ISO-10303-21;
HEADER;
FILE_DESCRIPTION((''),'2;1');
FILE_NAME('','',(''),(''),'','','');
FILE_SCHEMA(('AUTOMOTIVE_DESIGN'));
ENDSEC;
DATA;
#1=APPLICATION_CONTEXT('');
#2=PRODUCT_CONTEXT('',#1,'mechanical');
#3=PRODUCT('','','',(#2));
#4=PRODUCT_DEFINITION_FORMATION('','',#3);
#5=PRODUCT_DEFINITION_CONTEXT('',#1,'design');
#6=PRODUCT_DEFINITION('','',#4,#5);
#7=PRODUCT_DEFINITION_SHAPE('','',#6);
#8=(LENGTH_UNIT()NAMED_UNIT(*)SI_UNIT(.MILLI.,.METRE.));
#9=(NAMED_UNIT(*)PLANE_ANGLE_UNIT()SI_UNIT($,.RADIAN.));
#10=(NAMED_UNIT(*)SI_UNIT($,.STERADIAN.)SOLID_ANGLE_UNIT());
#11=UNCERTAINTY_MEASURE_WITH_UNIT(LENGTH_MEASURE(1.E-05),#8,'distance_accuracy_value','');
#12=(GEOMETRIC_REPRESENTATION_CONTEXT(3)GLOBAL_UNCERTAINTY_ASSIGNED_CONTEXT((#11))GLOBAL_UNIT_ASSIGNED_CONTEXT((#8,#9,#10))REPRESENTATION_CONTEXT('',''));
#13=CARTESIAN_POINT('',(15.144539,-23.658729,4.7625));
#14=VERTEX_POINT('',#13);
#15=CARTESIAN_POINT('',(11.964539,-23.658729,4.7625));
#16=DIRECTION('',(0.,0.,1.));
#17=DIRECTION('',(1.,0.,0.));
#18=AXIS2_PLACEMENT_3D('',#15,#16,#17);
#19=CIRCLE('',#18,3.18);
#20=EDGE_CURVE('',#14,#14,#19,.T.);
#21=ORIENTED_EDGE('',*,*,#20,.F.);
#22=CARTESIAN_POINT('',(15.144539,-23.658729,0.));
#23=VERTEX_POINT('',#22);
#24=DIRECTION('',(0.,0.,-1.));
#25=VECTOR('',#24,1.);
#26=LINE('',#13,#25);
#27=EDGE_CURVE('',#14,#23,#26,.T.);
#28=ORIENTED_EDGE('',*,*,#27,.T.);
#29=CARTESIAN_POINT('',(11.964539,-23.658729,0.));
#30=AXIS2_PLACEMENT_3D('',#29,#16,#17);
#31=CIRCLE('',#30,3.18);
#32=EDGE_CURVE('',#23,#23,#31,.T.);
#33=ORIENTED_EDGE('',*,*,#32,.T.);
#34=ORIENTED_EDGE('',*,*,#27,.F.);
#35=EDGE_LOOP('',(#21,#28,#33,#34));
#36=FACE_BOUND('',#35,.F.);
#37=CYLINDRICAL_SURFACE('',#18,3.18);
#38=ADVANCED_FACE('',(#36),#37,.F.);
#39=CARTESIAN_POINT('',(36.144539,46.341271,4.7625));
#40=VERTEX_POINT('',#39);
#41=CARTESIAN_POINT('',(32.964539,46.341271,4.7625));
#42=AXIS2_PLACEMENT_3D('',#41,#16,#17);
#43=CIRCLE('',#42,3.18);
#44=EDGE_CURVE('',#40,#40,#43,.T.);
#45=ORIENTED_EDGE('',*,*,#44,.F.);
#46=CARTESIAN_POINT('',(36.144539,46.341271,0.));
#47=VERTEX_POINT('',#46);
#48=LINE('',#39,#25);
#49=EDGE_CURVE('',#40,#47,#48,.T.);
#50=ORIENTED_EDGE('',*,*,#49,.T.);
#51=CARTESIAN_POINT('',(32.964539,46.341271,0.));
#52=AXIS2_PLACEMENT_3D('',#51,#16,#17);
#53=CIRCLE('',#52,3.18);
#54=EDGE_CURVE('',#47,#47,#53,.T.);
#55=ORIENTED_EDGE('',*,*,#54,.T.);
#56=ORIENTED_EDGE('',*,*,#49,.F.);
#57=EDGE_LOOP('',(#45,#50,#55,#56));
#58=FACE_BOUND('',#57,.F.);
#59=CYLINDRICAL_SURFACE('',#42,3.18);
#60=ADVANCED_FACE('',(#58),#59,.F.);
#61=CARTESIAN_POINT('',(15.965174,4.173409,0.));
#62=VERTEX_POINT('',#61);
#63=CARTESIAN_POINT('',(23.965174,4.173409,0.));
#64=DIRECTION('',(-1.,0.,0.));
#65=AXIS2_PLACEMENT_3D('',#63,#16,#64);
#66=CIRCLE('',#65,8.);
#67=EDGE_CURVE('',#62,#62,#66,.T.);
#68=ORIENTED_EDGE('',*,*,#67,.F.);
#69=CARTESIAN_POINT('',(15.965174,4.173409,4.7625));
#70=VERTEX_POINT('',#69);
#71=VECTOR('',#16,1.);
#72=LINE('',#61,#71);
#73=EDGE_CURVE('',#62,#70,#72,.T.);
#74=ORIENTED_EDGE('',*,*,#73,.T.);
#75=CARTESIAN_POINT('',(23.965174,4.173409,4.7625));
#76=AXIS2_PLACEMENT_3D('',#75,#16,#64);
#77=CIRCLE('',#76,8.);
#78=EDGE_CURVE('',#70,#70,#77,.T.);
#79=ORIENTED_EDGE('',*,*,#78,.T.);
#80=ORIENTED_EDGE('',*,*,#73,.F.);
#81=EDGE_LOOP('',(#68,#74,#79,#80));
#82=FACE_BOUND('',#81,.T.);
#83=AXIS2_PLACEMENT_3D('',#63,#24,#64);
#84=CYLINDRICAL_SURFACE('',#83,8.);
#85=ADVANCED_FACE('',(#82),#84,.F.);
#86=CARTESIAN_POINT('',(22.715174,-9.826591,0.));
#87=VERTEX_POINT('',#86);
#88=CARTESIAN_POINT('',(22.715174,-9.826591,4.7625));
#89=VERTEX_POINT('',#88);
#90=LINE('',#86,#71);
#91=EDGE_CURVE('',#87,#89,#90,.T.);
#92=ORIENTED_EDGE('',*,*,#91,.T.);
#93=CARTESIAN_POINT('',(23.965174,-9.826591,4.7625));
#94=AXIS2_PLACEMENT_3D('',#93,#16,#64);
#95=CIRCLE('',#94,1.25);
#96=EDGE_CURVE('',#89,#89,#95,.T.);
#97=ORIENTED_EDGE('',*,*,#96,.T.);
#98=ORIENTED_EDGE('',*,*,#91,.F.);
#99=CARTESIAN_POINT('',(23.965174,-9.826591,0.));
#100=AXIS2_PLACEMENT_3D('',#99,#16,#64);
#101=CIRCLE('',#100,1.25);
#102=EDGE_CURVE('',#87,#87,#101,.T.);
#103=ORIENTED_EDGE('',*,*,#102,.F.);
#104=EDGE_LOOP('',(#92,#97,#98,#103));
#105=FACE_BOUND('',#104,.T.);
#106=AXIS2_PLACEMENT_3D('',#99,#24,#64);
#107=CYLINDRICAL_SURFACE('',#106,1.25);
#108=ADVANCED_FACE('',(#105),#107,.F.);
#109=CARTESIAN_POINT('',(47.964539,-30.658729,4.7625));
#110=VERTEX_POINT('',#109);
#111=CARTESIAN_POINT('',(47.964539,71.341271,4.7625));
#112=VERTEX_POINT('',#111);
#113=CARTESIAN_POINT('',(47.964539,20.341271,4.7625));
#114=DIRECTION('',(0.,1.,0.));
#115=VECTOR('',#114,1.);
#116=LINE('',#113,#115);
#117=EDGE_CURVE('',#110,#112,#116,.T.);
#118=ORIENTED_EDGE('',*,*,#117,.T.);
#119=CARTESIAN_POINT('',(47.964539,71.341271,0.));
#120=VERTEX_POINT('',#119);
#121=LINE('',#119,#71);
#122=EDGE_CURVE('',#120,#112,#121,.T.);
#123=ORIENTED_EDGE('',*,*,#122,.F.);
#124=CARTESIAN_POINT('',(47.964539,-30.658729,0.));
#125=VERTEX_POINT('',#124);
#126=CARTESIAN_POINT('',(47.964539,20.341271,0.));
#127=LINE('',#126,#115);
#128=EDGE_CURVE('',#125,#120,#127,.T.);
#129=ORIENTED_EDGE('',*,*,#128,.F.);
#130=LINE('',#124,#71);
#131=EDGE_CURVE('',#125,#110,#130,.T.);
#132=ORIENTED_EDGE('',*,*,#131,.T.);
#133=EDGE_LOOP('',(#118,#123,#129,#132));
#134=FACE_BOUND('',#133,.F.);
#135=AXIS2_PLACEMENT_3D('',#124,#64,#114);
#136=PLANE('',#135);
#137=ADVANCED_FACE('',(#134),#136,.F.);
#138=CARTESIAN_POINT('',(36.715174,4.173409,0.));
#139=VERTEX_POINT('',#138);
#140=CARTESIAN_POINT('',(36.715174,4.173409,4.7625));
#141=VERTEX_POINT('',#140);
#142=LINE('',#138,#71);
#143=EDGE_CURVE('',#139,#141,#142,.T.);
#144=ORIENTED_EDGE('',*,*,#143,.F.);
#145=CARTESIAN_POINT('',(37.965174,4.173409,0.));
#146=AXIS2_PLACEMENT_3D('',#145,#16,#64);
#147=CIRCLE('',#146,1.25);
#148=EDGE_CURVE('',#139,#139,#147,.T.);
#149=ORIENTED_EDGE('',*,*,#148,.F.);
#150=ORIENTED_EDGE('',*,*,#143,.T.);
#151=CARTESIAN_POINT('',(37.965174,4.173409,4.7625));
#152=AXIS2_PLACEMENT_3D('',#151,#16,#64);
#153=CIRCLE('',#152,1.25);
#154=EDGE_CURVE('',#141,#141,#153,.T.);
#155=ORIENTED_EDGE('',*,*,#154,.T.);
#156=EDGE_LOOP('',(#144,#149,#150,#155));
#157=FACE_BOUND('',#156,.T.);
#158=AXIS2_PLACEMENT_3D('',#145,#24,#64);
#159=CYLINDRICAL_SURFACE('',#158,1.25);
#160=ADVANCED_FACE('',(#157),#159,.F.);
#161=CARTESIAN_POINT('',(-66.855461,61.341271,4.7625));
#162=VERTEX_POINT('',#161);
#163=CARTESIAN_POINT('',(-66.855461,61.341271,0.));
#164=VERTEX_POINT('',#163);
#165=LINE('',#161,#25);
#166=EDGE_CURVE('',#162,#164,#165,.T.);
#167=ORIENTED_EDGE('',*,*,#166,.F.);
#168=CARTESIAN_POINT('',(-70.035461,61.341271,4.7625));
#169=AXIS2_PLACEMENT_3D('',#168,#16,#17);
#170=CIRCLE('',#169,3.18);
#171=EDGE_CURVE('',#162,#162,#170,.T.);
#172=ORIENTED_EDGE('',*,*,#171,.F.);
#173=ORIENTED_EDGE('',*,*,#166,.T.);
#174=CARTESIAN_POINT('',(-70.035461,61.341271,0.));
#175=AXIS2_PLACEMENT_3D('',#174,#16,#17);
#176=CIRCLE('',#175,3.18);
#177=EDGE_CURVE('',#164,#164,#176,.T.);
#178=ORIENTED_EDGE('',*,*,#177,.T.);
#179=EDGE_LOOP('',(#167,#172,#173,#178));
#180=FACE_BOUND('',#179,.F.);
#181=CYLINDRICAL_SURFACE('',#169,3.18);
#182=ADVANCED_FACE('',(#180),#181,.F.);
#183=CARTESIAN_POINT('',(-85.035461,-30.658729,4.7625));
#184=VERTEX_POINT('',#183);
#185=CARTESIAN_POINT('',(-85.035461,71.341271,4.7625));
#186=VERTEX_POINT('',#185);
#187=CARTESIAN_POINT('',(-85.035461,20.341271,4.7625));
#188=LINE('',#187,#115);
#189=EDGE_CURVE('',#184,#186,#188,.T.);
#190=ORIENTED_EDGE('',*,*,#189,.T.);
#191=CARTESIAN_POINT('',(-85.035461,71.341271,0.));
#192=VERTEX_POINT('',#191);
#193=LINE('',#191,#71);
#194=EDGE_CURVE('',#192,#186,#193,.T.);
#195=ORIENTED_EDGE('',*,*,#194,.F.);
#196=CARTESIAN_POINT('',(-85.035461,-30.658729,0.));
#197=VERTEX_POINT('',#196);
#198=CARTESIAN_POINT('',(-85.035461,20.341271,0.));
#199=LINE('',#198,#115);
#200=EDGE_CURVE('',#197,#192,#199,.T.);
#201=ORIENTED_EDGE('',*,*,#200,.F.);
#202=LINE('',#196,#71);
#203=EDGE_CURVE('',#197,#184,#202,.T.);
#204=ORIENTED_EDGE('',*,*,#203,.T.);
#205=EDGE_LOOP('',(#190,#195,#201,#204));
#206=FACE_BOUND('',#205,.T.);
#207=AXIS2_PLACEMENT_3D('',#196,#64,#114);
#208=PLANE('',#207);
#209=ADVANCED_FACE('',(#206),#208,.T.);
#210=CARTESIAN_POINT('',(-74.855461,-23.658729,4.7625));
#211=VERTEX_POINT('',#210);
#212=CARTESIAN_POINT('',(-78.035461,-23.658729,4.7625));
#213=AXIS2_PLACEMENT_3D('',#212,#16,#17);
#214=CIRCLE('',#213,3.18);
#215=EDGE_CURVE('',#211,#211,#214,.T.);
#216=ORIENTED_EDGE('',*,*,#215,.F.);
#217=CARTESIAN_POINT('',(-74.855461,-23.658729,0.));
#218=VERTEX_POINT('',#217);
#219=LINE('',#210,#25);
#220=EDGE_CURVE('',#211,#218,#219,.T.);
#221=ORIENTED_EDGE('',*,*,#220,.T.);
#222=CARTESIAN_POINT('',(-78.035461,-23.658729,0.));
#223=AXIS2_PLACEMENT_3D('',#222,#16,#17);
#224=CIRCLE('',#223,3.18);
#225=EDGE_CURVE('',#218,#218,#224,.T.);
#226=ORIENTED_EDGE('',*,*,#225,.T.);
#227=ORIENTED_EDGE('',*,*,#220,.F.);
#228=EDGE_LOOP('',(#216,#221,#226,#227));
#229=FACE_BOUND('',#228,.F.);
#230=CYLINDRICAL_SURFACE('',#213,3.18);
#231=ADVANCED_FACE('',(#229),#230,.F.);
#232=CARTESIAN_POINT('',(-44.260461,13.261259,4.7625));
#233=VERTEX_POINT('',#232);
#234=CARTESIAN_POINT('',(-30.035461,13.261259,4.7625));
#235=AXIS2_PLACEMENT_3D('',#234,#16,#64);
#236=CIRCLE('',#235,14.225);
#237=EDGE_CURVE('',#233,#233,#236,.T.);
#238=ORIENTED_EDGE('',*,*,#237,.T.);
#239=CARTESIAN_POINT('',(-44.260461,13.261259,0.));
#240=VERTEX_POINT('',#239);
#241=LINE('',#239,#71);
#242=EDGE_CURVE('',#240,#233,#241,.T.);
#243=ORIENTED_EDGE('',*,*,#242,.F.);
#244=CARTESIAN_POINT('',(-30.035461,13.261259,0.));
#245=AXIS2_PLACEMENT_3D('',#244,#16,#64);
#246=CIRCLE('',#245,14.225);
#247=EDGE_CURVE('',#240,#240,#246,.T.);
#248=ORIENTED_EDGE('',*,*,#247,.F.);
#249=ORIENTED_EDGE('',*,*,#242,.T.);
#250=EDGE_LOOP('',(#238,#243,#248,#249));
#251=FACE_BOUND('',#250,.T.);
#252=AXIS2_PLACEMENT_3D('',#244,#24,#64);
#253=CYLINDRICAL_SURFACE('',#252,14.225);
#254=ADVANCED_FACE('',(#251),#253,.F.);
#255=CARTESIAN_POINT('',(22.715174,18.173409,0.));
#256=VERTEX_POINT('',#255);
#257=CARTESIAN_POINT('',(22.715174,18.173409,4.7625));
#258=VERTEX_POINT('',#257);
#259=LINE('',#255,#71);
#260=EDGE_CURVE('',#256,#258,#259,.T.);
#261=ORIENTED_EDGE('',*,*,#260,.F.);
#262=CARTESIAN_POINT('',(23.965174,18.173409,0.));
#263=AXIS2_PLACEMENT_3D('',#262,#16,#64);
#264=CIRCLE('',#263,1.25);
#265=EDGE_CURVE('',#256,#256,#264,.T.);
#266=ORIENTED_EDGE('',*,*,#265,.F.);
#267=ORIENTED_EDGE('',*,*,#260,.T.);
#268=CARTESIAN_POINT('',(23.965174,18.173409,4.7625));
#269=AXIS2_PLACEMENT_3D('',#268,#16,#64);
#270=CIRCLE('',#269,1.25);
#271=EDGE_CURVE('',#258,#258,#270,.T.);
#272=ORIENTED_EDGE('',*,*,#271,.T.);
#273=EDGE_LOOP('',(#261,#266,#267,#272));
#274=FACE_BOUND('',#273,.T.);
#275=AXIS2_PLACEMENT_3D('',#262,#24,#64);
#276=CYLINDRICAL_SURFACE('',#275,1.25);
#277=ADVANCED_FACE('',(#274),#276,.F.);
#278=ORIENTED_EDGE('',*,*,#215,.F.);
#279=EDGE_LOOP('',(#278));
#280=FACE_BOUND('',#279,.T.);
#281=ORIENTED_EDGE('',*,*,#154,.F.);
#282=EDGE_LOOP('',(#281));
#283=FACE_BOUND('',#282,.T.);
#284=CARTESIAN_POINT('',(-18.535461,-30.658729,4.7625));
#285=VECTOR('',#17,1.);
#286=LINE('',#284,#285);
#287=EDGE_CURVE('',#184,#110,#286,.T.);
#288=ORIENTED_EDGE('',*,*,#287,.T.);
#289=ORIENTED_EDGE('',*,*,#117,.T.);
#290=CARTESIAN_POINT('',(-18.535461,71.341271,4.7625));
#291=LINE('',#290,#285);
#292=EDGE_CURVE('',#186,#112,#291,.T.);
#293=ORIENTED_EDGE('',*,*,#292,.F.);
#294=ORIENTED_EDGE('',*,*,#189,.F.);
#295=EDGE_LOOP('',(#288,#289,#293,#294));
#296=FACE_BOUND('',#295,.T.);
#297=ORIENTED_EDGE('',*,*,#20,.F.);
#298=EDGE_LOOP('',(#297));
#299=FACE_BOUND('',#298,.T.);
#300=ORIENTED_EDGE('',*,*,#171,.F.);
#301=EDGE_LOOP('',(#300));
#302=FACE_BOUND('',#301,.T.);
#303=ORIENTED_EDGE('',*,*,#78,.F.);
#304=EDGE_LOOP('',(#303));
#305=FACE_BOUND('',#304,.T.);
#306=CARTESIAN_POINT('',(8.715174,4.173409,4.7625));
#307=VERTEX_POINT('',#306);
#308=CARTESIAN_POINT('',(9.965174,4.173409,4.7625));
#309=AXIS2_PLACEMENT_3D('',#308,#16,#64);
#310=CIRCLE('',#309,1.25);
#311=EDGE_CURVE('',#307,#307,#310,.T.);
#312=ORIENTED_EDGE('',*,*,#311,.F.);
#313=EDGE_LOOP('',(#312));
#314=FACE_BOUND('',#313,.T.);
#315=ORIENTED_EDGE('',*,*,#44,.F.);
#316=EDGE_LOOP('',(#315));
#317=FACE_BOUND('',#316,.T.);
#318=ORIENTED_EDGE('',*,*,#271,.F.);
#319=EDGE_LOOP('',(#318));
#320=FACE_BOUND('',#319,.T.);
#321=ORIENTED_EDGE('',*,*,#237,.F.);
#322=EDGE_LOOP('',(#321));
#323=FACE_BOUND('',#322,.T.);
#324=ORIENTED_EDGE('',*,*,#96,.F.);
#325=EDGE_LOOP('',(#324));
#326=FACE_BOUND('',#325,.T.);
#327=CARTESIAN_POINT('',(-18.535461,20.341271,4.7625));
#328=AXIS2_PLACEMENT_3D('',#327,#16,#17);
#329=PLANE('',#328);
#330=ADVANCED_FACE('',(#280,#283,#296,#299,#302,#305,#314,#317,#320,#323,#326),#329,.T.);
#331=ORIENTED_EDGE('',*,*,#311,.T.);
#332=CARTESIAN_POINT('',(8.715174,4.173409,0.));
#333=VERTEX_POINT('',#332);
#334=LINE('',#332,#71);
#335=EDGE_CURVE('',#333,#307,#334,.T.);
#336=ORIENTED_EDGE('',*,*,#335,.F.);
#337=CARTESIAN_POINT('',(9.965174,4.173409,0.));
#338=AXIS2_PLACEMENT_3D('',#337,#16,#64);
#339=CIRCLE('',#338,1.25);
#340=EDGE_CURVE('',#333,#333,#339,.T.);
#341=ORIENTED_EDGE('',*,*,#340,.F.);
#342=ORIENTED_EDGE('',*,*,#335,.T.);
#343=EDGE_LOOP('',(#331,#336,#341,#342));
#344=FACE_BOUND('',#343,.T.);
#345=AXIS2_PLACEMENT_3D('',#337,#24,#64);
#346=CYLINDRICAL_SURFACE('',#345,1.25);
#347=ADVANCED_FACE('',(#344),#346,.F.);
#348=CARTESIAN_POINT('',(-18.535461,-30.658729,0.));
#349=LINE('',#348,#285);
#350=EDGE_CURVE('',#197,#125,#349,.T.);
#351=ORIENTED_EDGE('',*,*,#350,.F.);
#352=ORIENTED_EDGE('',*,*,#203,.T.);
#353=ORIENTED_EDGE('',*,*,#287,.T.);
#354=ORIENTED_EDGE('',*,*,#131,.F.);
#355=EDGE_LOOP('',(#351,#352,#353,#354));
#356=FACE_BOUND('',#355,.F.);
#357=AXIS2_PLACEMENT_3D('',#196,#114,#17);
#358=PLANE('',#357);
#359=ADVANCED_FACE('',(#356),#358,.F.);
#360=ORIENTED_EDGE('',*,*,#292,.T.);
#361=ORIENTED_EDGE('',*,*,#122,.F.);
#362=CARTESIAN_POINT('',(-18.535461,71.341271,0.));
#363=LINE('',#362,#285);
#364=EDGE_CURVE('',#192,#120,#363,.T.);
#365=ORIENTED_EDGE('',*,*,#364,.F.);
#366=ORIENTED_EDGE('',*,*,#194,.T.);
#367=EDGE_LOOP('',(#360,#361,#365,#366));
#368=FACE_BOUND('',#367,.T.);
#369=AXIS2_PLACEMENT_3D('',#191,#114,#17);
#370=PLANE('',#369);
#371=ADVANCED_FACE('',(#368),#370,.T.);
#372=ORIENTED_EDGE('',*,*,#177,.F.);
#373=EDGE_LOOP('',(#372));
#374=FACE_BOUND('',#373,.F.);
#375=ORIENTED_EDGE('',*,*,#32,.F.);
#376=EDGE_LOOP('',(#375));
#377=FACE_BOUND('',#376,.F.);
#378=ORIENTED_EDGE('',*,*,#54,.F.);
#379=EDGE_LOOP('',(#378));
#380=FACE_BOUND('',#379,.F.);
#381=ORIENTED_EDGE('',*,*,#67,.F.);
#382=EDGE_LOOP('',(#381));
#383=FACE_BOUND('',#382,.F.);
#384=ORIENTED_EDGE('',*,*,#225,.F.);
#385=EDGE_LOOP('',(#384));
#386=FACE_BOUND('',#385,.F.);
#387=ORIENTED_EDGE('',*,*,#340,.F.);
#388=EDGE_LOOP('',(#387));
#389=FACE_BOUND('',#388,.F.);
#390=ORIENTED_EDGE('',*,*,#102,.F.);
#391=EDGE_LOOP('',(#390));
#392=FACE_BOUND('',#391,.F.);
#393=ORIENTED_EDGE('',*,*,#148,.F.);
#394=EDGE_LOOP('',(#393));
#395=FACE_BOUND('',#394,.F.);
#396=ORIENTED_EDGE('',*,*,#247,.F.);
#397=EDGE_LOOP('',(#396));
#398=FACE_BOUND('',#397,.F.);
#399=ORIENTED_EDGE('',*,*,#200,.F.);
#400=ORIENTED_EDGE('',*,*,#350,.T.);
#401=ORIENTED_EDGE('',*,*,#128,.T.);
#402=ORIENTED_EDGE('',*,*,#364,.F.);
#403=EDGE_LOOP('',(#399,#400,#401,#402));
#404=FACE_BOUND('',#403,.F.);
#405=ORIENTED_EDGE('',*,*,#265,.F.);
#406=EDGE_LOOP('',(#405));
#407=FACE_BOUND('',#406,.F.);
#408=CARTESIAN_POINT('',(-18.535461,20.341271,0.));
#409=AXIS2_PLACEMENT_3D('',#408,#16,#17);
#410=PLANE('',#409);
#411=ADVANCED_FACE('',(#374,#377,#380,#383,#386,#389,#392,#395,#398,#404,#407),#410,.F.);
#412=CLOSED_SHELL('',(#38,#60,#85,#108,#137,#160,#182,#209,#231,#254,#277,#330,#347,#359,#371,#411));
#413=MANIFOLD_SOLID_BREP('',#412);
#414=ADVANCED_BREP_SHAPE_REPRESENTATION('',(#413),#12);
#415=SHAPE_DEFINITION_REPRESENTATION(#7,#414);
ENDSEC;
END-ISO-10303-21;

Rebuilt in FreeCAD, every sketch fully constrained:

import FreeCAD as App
import Part
import Sketcher

V = App.Vector

doc = App.newDocument("Part")
body = doc.addObject("PartDesign::Body", "Body")

# Sketch on XY plane
sketch1 = body.newObject("Sketcher::SketchObject", "Sketch")
sketch1.AttachmentSupport = (doc.getObject("XY_Plane"), [""])
sketch1.MapMode = "FlatFace"
sketch1.addGeometry([
    Part.LineSegment(V(-85, 71.3, 0), V(-85, -30.7, 0)),  # 0
    Part.LineSegment(V(-85, -30.7, 0), V(48, -30.7, 0)),  # 1
    Part.LineSegment(V(48, -30.7, 0), V(48, 71.3, 0)),  # 2
    Part.LineSegment(V(48, 71.3, 0), V(-85, 71.3, 0)),  # 3
    Part.Circle(V(24, -9.8, 0), V(0, 0, 1), 1.2),  # 4
    Part.Circle(V(10, 4.2, 0), V(0, 0, 1), 1.2),  # 5
    Part.Circle(V(24, 4.2, 0), V(0, 0, 1), 8),  # 6
    Part.Circle(V(38, 4.2, 0), V(0, 0, 1), 1.2),  # 7
    Part.Circle(V(-30, 13.3, 0), V(0, 0, 1), 14.2),  # 8
    Part.Circle(V(24, 18.2, 0), V(0, 0, 1), 1.2),  # 9
], False)
sketch1.addConstraint([
    Sketcher.Constraint("Coincident", 0, 2, 1, 1),
    Sketcher.Constraint("Coincident", 1, 2, 2, 1),
    Sketcher.Constraint("Coincident", 2, 2, 3, 1),
    Sketcher.Constraint("Coincident", 3, 2, 0, 1),
    Sketcher.Constraint("Vertical", 0),
    Sketcher.Constraint("Horizontal", 1),
    Sketcher.Constraint("Vertical", 2),
    Sketcher.Constraint("Horizontal", 3),
    Sketcher.Constraint("Equal", 4, 5),
    Sketcher.Constraint("Equal", 5, 7),
    Sketcher.Constraint("Equal", 7, 9),
    Sketcher.Constraint("Horizontal", 5, 3, 6, 3),
    Sketcher.Constraint("Horizontal", 6, 3, 7, 3),
    Sketcher.Constraint("Vertical", 4, 3, 6, 3),
    Sketcher.Constraint("Vertical", 6, 3, 9, 3),
    Sketcher.Constraint("Diameter", 6, 16.0),
    Sketcher.Constraint("Diameter", 4, 2.5),
    Sketcher.Constraint("Diameter", 8, 28.45),
    Sketcher.Constraint("DistanceX", 1, 1, 1, 2, 133.0),
    Sketcher.Constraint("DistanceY", 0, 2, 0, 1, 102.0),
    Sketcher.Constraint("DistanceX", 5, 3, 4, 3, 14.0),
    Sketcher.Constraint("DistanceY", 4, 3, 5, 3, 14.0),
    Sketcher.Constraint("DistanceX", 6, 3, 7, 3, 14.0),
    Sketcher.Constraint("DistanceY", 6, 3, 9, 3, 14.0),
    Sketcher.Constraint("DistanceX", 0, 2, 8, 3, 55.0),
    Sketcher.Constraint("DistanceY", 4, 3, -1, 1, 9.826591),
    Sketcher.Constraint("DistanceX", 8, 3, -1, 1, 30.035461),
    Sketcher.Constraint("DistanceY", -1, 1, 8, 3, 13.261259),
    Sketcher.Constraint("DistanceY", 0, 2, -1, 1, 30.658729),
    Sketcher.Constraint("DistanceX", -1, 1, 4, 3, 23.965174),
])
pad1 = body.newObject("PartDesign::Pad", "Pad")
pad1.Profile = sketch1
pad1.Length = 4.7625

# Sketch on XY plane
sketch2 = body.newObject("Sketcher::SketchObject", "Sketch001")
sketch2.AttachmentSupport = (doc.getObject("XY_Plane"), [""])
sketch2.MapMode = "FlatFace"
sketch2.AttachmentOffset = App.Placement(V(0, 0, 4.7625), App.Rotation())
sketch2.addGeometry(Part.Circle(V(-70, 61.3, 0), V(0, 0, 1), 3.2), False)
sketch2.addConstraint([
    Sketcher.Constraint("Diameter", 0, 6.36),
    Sketcher.Constraint("DistanceX", 0, 3, -1, 1, 70.035461),
    Sketcher.Constraint("DistanceY", -1, 1, 0, 3, 61.341271),
])
pocket1 = body.newObject("PartDesign::Pocket", "Pocket")
pocket1.Profile = sketch2
pocket1.Type = "UpToFirst"

# Sketch on XY plane
sketch3 = body.newObject("Sketcher::SketchObject", "Sketch002")
sketch3.AttachmentSupport = (doc.getObject("XY_Plane"), [""])
sketch3.MapMode = "FlatFace"
sketch3.AttachmentOffset = App.Placement(V(0, 0, 4.7625), App.Rotation())
sketch3.addGeometry(Part.Circle(V(33, 46.3, 0), V(0, 0, 1), 3.2), False)
sketch3.addConstraint([
    Sketcher.Constraint("Diameter", 0, 6.36),
    Sketcher.Constraint("DistanceX", -1, 1, 0, 3, 32.964539),
    Sketcher.Constraint("DistanceY", -1, 1, 0, 3, 46.341271),
])
pocket2 = body.newObject("PartDesign::Pocket", "Pocket001")
pocket2.Profile = sketch3
pocket2.Type = "UpToFirst"

# Sketch on XY plane
sketch4 = body.newObject("Sketcher::SketchObject", "Sketch003")
sketch4.AttachmentSupport = (doc.getObject("XY_Plane"), [""])
sketch4.MapMode = "FlatFace"
sketch4.AttachmentOffset = App.Placement(V(0, 0, 4.7625), App.Rotation())
sketch4.addGeometry(Part.Circle(V(12, -23.7, 0), V(0, 0, 1), 3.2), False)
sketch4.addConstraint([
    Sketcher.Constraint("Diameter", 0, 6.36),
    Sketcher.Constraint("DistanceX", -1, 1, 0, 3, 11.964539),
    Sketcher.Constraint("DistanceY", 0, 3, -1, 1, 23.658729),
])
pocket3 = body.newObject("PartDesign::Pocket", "Pocket002")
pocket3.Profile = sketch4
pocket3.Type = "UpToFirst"

# Sketch on XY plane
sketch5 = body.newObject("Sketcher::SketchObject", "Sketch004")
sketch5.AttachmentSupport = (doc.getObject("XY_Plane"), [""])
sketch5.MapMode = "FlatFace"
sketch5.AttachmentOffset = App.Placement(V(0, 0, 4.7625), App.Rotation())
sketch5.addGeometry(Part.Circle(V(-78, -23.7, 0), V(0, 0, 1), 3.2), False)
sketch5.addConstraint([
    Sketcher.Constraint("Diameter", 0, 6.36),
    Sketcher.Constraint("DistanceX", 0, 3, -1, 1, 78.035461),
    Sketcher.Constraint("DistanceY", 0, 3, -1, 1, 23.658729),
])
pocket4 = body.newObject("PartDesign::Pocket", "Pocket003")
pocket4.Profile = sketch5
pocket4.Type = "UpToFirst"

doc.recompute()
